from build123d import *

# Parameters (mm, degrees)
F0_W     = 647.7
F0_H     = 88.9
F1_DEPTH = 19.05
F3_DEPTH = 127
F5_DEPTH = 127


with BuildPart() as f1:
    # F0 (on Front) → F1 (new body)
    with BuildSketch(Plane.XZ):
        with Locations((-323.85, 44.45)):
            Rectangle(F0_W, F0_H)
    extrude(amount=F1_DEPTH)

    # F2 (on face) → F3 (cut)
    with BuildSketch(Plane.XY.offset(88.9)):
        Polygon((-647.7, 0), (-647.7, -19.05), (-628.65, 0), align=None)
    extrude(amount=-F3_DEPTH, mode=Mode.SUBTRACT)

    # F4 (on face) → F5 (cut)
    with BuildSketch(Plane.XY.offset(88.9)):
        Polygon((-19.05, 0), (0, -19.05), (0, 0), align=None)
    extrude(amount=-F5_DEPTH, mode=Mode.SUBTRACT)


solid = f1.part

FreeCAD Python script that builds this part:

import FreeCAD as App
import Part
import Sketcher

V = App.Vector
Q = App.Units.Quantity


def add_polygon(sketch, points):
    """Adds a closed chain of lines whose ends are joined by coincident constraints."""
    first, n = sketch.GeometryCount, len(points)
    for a, b in zip(points, points[1:] + points[:1]):
        sketch.addGeometry(Part.LineSegment(App.Vector(*a, 0), App.Vector(*b, 0)), False)
    for i in range(n):
        sketch.addConstraint(Sketcher.Constraint("Coincident", first + i, 2, first + (i + 1) % n, 1))

doc = App.newDocument("Part")
body = doc.addObject("PartDesign::Body", "Body")

sketch1 = body.newObject("Sketcher::SketchObject", "Sketch")
sketch1.AttachmentSupport = (doc.getObject("XZ_Plane"), [""])
sketch1.MapMode = "FlatFace"
add_polygon(sketch1, [(-647.7, 88.9), (-647.7, 0), (0, 0), (0, 88.9)])
sketch1.addConstraint(Sketcher.Constraint("Vertical", 0))
sketch1.addConstraint(Sketcher.Constraint("Horizontal", 1))
sketch1.addConstraint(Sketcher.Constraint("Vertical", 2))
sketch1.addConstraint(Sketcher.Constraint("Horizontal", 3))
sketch1.addConstraint(Sketcher.Constraint("Coincident", 1, 2, -1, 1))
sketch1.addConstraint(Sketcher.Constraint("DistanceX", 1, 1, 1, 2, Q("25.5 in")))
sketch1.addConstraint(Sketcher.Constraint("DistanceY", 0, 2, 0, 1, Q("3.5 in")))
pad1 = body.newObject("PartDesign::Pad", "Pad")
pad1.Profile = sketch1
pad1.Length = Q("0.75 in")

sketch2 = body.newObject("Sketcher::SketchObject", "Sketch001")
sketch2.AttachmentSupport = (doc.getObject("XY_Plane"), [""])
sketch2.MapMode = "FlatFace"
sketch2.AttachmentOffset = App.Placement(V(0, 0, 3.5 * 25.4), App.Rotation())
add_polygon(sketch2, [(-647.7, 0), (-647.7, -19.05), (-628.65, 0)])
sketch2.addConstraint(Sketcher.Constraint("Vertical", 0))
sketch2.addConstraint(Sketcher.Constraint("Horizontal", 2))
sketch2.addConstraint(Sketcher.Constraint("PointOnObject", 1, 2, -1))
sketch2.addConstraint(Sketcher.Constraint("Equal", 2, 0))
sketch2.addConstraint(Sketcher.Constraint("DistanceX", 2, 2, 2, 1, Q("0.75 in")))
sketch2.addConstraint(Sketcher.Constraint("DistanceX", 0, 2, -1, 1, Q("25.5 in")))
pocket1 = body.newObject("PartDesign::Pocket", "Pocket")
pocket1.Profile = sketch2
pocket1.Length = Q("5 in")

sketch3 = body.newObject("Sketcher::SketchObject", "Sketch002")
sketch3.AttachmentSupport = (doc.getObject("XY_Plane"), [""])
sketch3.MapMode = "FlatFace"
sketch3.AttachmentOffset = App.Placement(V(0, 0, 3.5 * 25.4), App.Rotation())
add_polygon(sketch3, [(-19.05, 0), (0, -19.05), (0, 0)])
sketch3.addConstraint(Sketcher.Constraint("Vertical", 1))
sketch3.addConstraint(Sketcher.Constraint("Horizontal", 2))
sketch3.addConstraint(Sketcher.Constraint("Coincident", 1, 2, -1, 1))
sketch3.addConstraint(Sketcher.Constraint("Equal", 2, 1))
sketch3.addConstraint(Sketcher.Constraint("DistanceX", 2, 2, 2, 1, Q("0.75 in")))
pocket2 = body.newObject("PartDesign::Pocket", "Pocket001")
pocket2.Profile = sketch3
pocket2.Length = Q("5 in")

doc.recompute()
